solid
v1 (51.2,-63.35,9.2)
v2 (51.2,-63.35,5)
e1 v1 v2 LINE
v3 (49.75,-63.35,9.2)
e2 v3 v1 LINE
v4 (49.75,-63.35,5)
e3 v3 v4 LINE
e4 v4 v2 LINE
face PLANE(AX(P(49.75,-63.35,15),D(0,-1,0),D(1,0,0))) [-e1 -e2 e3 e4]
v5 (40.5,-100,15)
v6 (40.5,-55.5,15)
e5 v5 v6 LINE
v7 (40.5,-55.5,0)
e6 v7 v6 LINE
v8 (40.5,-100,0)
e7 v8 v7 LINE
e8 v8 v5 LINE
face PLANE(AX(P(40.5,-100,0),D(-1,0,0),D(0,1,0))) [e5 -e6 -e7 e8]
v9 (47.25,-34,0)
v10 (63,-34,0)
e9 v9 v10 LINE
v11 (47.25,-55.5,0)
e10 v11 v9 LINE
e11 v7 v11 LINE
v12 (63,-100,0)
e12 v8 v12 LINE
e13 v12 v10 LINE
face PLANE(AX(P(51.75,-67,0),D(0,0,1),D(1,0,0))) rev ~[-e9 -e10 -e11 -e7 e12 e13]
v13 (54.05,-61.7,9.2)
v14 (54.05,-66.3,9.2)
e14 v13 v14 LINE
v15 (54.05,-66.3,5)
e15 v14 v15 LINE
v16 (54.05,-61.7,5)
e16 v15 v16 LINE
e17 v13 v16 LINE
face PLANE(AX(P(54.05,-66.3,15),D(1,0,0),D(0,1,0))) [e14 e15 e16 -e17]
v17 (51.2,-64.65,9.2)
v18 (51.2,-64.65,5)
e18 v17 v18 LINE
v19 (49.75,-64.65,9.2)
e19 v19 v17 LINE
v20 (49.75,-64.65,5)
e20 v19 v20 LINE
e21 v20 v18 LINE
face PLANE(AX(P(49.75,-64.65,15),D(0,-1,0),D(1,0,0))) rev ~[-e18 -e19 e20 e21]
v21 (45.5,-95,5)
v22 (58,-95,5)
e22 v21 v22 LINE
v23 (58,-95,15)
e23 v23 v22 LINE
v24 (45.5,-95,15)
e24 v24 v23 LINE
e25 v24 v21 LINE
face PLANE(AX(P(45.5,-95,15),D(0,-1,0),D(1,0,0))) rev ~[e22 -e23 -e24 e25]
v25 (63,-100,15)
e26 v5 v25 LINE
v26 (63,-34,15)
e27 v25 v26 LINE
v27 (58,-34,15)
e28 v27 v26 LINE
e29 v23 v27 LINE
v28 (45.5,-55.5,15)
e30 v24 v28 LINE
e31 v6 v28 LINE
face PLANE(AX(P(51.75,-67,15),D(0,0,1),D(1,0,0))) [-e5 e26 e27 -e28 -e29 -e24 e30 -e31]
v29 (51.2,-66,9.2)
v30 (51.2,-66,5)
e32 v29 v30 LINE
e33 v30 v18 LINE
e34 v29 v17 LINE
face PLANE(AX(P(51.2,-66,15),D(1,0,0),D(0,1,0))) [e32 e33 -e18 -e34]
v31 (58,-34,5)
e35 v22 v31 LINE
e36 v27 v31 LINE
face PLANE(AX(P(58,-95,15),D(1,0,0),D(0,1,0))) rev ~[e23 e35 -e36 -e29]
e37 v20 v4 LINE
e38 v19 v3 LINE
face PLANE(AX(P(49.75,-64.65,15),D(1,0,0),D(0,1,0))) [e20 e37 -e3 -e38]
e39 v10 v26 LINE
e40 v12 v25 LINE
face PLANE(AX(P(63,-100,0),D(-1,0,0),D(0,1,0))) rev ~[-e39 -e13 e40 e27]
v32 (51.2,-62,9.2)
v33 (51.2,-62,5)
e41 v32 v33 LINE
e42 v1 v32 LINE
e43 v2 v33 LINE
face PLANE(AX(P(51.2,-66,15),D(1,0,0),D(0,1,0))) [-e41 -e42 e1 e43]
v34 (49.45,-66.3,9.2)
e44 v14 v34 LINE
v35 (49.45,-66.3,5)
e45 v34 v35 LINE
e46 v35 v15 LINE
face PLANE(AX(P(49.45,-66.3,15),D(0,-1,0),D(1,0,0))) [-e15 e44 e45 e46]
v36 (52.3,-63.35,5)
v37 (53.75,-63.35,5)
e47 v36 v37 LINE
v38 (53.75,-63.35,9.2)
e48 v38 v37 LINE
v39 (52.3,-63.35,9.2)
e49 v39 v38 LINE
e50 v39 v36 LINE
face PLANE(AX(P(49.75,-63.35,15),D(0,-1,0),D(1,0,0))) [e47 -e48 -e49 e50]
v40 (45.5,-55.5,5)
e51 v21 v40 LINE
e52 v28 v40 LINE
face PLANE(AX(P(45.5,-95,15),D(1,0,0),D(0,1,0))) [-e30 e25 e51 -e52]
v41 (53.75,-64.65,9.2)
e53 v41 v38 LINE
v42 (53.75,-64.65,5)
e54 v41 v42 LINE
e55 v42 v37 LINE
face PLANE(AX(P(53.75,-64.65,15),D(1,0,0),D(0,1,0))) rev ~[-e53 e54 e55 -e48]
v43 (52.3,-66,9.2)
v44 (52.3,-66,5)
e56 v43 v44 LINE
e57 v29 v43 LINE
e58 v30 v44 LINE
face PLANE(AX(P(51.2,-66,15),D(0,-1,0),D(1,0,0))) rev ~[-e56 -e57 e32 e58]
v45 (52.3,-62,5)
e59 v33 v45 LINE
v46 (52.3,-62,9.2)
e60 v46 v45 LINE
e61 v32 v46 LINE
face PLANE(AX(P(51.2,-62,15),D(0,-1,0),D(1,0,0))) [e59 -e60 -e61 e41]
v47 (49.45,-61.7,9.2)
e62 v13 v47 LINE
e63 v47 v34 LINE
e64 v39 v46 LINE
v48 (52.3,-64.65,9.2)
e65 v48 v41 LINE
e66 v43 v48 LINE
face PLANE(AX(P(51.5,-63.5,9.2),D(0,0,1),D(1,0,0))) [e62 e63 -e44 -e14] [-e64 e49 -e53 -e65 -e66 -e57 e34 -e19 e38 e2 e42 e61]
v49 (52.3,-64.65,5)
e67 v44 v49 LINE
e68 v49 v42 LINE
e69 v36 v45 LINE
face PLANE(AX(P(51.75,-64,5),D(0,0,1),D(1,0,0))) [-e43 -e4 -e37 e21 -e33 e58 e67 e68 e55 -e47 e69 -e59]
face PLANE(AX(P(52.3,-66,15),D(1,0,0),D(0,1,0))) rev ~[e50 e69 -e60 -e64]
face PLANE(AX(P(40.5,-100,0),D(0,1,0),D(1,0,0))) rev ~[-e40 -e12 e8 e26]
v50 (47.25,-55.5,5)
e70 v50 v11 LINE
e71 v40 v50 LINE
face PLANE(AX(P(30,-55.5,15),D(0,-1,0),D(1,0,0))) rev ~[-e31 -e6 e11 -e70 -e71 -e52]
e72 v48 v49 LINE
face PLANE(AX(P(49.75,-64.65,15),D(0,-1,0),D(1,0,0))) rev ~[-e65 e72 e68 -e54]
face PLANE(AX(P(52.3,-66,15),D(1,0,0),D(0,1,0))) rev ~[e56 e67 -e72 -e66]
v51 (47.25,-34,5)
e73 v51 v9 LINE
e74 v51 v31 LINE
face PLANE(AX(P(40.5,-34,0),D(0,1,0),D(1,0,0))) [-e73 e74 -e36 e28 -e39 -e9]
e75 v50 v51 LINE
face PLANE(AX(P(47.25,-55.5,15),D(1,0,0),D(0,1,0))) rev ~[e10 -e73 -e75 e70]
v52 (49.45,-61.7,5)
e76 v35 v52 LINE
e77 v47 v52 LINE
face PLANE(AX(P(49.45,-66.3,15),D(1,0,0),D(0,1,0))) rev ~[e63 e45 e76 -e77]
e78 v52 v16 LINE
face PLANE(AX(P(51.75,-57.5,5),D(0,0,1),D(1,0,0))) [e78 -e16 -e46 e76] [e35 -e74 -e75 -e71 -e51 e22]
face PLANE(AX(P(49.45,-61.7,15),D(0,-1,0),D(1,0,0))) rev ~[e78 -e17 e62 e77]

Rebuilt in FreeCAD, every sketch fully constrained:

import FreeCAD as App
import Part
import Sketcher

V = App.Vector

doc = App.newDocument("Part")
body = doc.addObject("PartDesign::Body", "Body")

# Sketch on XY plane
sketch1 = body.newObject("Sketcher::SketchObject", "Sketch")
sketch1.AttachmentSupport = (doc.getObject("XY_Plane"), [""])
sketch1.MapMode = "FlatFace"
sketch1.addGeometry([
    Part.LineSegment(V(40, -34, 0), V(40, -100, 0)),
    Part.LineSegment(V(40, -100, 0), V(63, -100, 0)),
    Part.LineSegment(V(63, -100, 0), V(63, -34, 0)),
    Part.LineSegment(V(63, -34, 0), V(40, -34, 0)),
], False)
sketch1.addConstraint([
    Sketcher.Constraint("Coincident", 0, 2, 1, 1),
    Sketcher.Constraint("Coincident", 1, 2, 2, 1),
    Sketcher.Constraint("Coincident", 2, 2, 3, 1),
    Sketcher.Constraint("Coincident", 3, 2, 0, 1),
    Sketcher.Constraint("Vertical", 0),
    Sketcher.Constraint("Horizontal", 1),
    Sketcher.Constraint("Vertical", 2),
    Sketcher.Constraint("Horizontal", 3),
    Sketcher.Constraint("DistanceY", 0, 2, 0, 1, 66.0),
    Sketcher.Constraint("DistanceX", 1, 1, 1, 2, 22.5),
    Sketcher.Constraint("DistanceY", 0, 2, -1, 1, 100.0),
    Sketcher.Constraint("DistanceX", -1, 1, 1, 2, 63.0),
])
pad1 = body.newObject("PartDesign::Pad", "Pad")
pad1.Profile = sketch1
pad1.Length = 15

# Sketch on XY plane
sketch2 = body.newObject("Sketcher::SketchObject", "Sketch001")
sketch2.AttachmentSupport = (doc.getObject("XY_Plane"), [""])
sketch2.MapMode = "FlatFace"
sketch2.AttachmentOffset = App.Placement(V(0, 0, 15), App.Rotation())
sketch2.addGeometry([
    Part.LineSegment(V(45.5, -20, 0), V(45.5, -95, 0)),  # 0
    Part.LineSegment(V(45.5, -95, 0), V(58, -95, 0)),  # 1
    Part.LineSegment(V(58, -95, 0), V(58, -20, 0)),  # 2
    Part.LineSegment(V(58, -20, 0), V(45.5, -20, 0)),  # 3
    Part.LineSegment(V(54, -66.3, 0), V(49.5, -66.3, 0)),  # 4
    Part.LineSegment(V(49.5, -66.3, 0), V(49.5, -61.7, 0)),  # 5
    Part.LineSegment(V(49.5, -61.7, 0), V(54, -61.7, 0)),  # 6
    Part.LineSegment(V(54, -61.7, 0), V(54, -66.3, 0)),  # 7
], False)
sketch2.addConstraint([
    Sketcher.Constraint("Coincident", 0, 2, 1, 1),
    Sketcher.Constraint("Coincident", 1, 2, 2, 1),
    Sketcher.Constraint("Coincident", 2, 2, 3, 1),
    Sketcher.Constraint("Coincident", 3, 2, 0, 1),
    Sketcher.Constraint("Coincident", 4, 2, 5, 1),
    Sketcher.Constraint("Coincident", 5, 2, 6, 1),
    Sketcher.Constraint("Coincident", 6, 2, 7, 1),
    Sketcher.Constraint("Coincident", 7, 2, 4, 1),
    Sketcher.Constraint("Vertical", 0),
    Sketcher.Constraint("Horizontal", 1),
    Sketcher.Constraint("Vertical", 2),
    Sketcher.Constraint("Horizontal", 3),
    Sketcher.Constraint("Horizontal", 4),
    Sketcher.Constraint("Vertical", 5),
    Sketcher.Constraint("Horizontal", 6),
    Sketcher.Constraint("Vertical", 7),
    Sketcher.Constraint("Equal", 6, 5),
    Sketcher.Constraint("DistanceY", 0, 2, 0, 1, 75.0),
    Sketcher.Constraint("DistanceX", 1, 1, 1, 2, 12.5),
    Sketcher.Constraint("DistanceX", 4, 2, 4, 1, 4.6),
    Sketcher.Constraint("DistanceY", 0, 2, -1, 1, 95.0),
    Sketcher.Constraint("DistanceX", -1, 1, 1, 2, 58.0),
    Sketcher.Constraint("DistanceY", 4, 2, -1, 1, 66.3),
    Sketcher.Constraint("DistanceX", -1, 1, 4, 2, 49.45),
])
pocket1 = body.newObject("PartDesign::Pocket", "Pocket")
pocket1.Profile = sketch2
pocket1.Length = 10

# Sketch on XY plane
sketch3 = body.newObject("Sketcher::SketchObject", "Sketch002")
sketch3.AttachmentSupport = (doc.getObject("XY_Plane"), [""])
sketch3.MapMode = "FlatFace"
sketch3.AttachmentOffset = App.Placement(V(0, 0, 15), App.Rotation())
sketch3.addGeometry([
    Part.LineSegment(V(48, -60, 0), V(48, -67, 0)),
    Part.LineSegment(V(48, -67, 0), V(55, -67, 0)),
    Part.LineSegment(V(55, -67, 0), V(55, -60, 0)),
    Part.LineSegment(V(55, -60, 0), V(48, -60, 0)),
], False)
sketch3.addConstraint([
    Sketcher.Constraint("Coincident", 0, 2, 1, 1),
    Sketcher.Constraint("Coincident", 1, 2, 2, 1),
    Sketcher.Constraint("Coincident", 2, 2, 3, 1),
    Sketcher.Constraint("Coincident", 3, 2, 0, 1),
    Sketcher.Constraint("Vertical", 0),
    Sketcher.Constraint("Horizontal", 1),
    Sketcher.Constraint("Vertical", 2),
    Sketcher.Constraint("Horizontal", 3),
    Sketcher.Constraint("Equal", 3, 0),
    Sketcher.Constraint("DistanceX", 1, 1, 1, 2, 7.0),
    Sketcher.Constraint("DistanceX", -1, 1, 0, 2, 48.0),
    Sketcher.Constraint("DistanceY", 0, 2, -1, 1, 67.0),
])
pocket2 = body.newObject("PartDesign::Pocket", "Pocket001")
pocket2.Profile = sketch3
pocket2.Length = 5.8

# Sketch on XY plane
sketch4 = body.newObject("Sketcher::SketchObject", "Sketch003")
sketch4.AttachmentSupport = (doc.getObject("XY_Plane"), [""])
sketch4.MapMode = "FlatFace"
sketch4.AttachmentOffset = App.Placement(V(0, 0, 15), App.Rotation())
sketch4.addGeometry([
    Part.LineSegment(V(51.2, -62, 0), V(51.2, -66, 0)),
    Part.LineSegment(V(51.2, -66, 0), V(52.3, -66, 0)),
    Part.LineSegment(V(52.3, -66, 0), V(52.3, -62, 0)),
    Part.LineSegment(V(52.3, -62, 0), V(51.2, -62, 0)),
], False)
sketch4.addConstraint([
    Sketcher.Constraint("Coincident", 0, 2, 1, 1),
    Sketcher.Constraint("Coincident", 1, 2, 2, 1),
    Sketcher.Constraint("Coincident", 2, 2, 3, 1),
    Sketcher.Constraint("Coincident", 3, 2, 0, 1),
    Sketcher.Constraint("Vertical", 0),
    Sketcher.Constraint("Horizontal", 1),
    Sketcher.Constraint("Vertical", 2),
    Sketcher.Constraint("Horizontal", 3),
    Sketcher.Constraint("DistanceY", 0, 2, 0, 1, 4.0),
    Sketcher.Constraint("DistanceX", 1, 1, 1, 2, 1.1),
    Sketcher.Constraint("DistanceY", 0, 2, -1, 1, 66.0),
    Sketcher.Constraint("DistanceX", -1, 1, 0, 2, 51.2),
])
pocket3 = body.newObject("PartDesign::Pocket", "Pocket002")
pocket3.Profile = sketch4
pocket3.Length = 10

# Sketch on XY plane
sketch5 = body.newObject("Sketcher::SketchObject", "Sketch004")
sketch5.AttachmentSupport = (doc.getObject("XY_Plane"), [""])
sketch5.MapMode = "FlatFace"
sketch5.AttachmentOffset = App.Placement(V(0, 0, 15), App.Rotation())
sketch5.addGeometry([
    Part.LineSegment(V(49.8, -63.4, 0), V(49.8, -64.7, 0)),
    Part.LineSegment(V(49.8, -64.7, 0), V(53.8, -64.7, 0)),
    Part.LineSegment(V(53.8, -64.7, 0), V(53.8, -63.4, 0)),
    Part.LineSegment(V(53.8, -63.4, 0), V(49.8, -63.4, 0)),
], False)
sketch5.addConstraint([
    Sketcher.Constraint("Coincident", 0, 2, 1, 1),
    Sketcher.Constraint("Coincident", 1, 2, 2, 1),
    Sketcher.Constraint("Coincident", 2, 2, 3, 1),
    Sketcher.Constraint("Coincident", 3, 2, 0, 1),
    Sketcher.Constraint("Vertical", 0),
    Sketcher.Constraint("Horizontal", 1),
    Sketcher.Constraint("Vertical", 2),
    Sketcher.Constraint("Horizontal", 3),
    Sketcher.Constraint("DistanceX", 1, 1, 1, 2, 4.0),
    Sketcher.Constraint("DistanceY", 0, 2, 0, 1, 1.3),
    Sketcher.Constraint("DistanceX", -1, 1, 0, 2, 49.75),
    Sketcher.Constraint("DistanceY", 0, 2, -1, 1, 64.65),
])
pocket4 = body.newObject("PartDesign::Pocket", "Pocket003")
pocket4.Profile = sketch5
pocket4.Length = 10

# Sketch on XY plane
sketch6 = body.newObject("Sketcher::SketchObject", "Sketch005")
sketch6.AttachmentSupport = (doc.getObject("XY_Plane"), [""])
sketch6.MapMode = "FlatFace"
sketch6.AttachmentOffset = App.Placement(V(0, 0, 15), App.Rotation())
sketch6.addGeometry([
    Part.LineSegment(V(30, -29, 0), V(30, -56, 0)),
    Part.LineSegment(V(30, -56, 0), V(47, -56, 0)),
    Part.LineSegment(V(47, -56, 0), V(47, -29, 0)),
    Part.LineSegment(V(47, -29, 0), V(30, -29, 0)),
], False)
sketch6.addConstraint([
    Sketcher.Constraint("Coincident", 0, 2, 1, 1),
    Sketcher.Constraint("Coincident", 1, 2, 2, 1),
    Sketcher.Constraint("Coincident", 2, 2, 3, 1),
    Sketcher.Constraint("Coincident", 3, 2, 0, 1),
    Sketcher.Constraint("Vertical", 0),
    Sketcher.Constraint("Horizontal", 1),
    Sketcher.Constraint("Vertical", 2),
    Sketcher.Constraint("Horizontal", 3),
    Sketcher.Constraint("DistanceY", 0, 2, 0, 1, 26.5),
    Sketcher.Constraint("DistanceX", -1, 1, 0, 2, 30.0),
    Sketcher.Constraint("DistanceY", 2, 2, -1, 1, 29.0),
    Sketcher.Constraint("DistanceX", 1, 1, 1, 2, 17.25),
])
pocket5 = body.newObject("PartDesign::Pocket", "Pocket004")
pocket5.Profile = sketch6
pocket5.Length = 20

doc.recompute()
